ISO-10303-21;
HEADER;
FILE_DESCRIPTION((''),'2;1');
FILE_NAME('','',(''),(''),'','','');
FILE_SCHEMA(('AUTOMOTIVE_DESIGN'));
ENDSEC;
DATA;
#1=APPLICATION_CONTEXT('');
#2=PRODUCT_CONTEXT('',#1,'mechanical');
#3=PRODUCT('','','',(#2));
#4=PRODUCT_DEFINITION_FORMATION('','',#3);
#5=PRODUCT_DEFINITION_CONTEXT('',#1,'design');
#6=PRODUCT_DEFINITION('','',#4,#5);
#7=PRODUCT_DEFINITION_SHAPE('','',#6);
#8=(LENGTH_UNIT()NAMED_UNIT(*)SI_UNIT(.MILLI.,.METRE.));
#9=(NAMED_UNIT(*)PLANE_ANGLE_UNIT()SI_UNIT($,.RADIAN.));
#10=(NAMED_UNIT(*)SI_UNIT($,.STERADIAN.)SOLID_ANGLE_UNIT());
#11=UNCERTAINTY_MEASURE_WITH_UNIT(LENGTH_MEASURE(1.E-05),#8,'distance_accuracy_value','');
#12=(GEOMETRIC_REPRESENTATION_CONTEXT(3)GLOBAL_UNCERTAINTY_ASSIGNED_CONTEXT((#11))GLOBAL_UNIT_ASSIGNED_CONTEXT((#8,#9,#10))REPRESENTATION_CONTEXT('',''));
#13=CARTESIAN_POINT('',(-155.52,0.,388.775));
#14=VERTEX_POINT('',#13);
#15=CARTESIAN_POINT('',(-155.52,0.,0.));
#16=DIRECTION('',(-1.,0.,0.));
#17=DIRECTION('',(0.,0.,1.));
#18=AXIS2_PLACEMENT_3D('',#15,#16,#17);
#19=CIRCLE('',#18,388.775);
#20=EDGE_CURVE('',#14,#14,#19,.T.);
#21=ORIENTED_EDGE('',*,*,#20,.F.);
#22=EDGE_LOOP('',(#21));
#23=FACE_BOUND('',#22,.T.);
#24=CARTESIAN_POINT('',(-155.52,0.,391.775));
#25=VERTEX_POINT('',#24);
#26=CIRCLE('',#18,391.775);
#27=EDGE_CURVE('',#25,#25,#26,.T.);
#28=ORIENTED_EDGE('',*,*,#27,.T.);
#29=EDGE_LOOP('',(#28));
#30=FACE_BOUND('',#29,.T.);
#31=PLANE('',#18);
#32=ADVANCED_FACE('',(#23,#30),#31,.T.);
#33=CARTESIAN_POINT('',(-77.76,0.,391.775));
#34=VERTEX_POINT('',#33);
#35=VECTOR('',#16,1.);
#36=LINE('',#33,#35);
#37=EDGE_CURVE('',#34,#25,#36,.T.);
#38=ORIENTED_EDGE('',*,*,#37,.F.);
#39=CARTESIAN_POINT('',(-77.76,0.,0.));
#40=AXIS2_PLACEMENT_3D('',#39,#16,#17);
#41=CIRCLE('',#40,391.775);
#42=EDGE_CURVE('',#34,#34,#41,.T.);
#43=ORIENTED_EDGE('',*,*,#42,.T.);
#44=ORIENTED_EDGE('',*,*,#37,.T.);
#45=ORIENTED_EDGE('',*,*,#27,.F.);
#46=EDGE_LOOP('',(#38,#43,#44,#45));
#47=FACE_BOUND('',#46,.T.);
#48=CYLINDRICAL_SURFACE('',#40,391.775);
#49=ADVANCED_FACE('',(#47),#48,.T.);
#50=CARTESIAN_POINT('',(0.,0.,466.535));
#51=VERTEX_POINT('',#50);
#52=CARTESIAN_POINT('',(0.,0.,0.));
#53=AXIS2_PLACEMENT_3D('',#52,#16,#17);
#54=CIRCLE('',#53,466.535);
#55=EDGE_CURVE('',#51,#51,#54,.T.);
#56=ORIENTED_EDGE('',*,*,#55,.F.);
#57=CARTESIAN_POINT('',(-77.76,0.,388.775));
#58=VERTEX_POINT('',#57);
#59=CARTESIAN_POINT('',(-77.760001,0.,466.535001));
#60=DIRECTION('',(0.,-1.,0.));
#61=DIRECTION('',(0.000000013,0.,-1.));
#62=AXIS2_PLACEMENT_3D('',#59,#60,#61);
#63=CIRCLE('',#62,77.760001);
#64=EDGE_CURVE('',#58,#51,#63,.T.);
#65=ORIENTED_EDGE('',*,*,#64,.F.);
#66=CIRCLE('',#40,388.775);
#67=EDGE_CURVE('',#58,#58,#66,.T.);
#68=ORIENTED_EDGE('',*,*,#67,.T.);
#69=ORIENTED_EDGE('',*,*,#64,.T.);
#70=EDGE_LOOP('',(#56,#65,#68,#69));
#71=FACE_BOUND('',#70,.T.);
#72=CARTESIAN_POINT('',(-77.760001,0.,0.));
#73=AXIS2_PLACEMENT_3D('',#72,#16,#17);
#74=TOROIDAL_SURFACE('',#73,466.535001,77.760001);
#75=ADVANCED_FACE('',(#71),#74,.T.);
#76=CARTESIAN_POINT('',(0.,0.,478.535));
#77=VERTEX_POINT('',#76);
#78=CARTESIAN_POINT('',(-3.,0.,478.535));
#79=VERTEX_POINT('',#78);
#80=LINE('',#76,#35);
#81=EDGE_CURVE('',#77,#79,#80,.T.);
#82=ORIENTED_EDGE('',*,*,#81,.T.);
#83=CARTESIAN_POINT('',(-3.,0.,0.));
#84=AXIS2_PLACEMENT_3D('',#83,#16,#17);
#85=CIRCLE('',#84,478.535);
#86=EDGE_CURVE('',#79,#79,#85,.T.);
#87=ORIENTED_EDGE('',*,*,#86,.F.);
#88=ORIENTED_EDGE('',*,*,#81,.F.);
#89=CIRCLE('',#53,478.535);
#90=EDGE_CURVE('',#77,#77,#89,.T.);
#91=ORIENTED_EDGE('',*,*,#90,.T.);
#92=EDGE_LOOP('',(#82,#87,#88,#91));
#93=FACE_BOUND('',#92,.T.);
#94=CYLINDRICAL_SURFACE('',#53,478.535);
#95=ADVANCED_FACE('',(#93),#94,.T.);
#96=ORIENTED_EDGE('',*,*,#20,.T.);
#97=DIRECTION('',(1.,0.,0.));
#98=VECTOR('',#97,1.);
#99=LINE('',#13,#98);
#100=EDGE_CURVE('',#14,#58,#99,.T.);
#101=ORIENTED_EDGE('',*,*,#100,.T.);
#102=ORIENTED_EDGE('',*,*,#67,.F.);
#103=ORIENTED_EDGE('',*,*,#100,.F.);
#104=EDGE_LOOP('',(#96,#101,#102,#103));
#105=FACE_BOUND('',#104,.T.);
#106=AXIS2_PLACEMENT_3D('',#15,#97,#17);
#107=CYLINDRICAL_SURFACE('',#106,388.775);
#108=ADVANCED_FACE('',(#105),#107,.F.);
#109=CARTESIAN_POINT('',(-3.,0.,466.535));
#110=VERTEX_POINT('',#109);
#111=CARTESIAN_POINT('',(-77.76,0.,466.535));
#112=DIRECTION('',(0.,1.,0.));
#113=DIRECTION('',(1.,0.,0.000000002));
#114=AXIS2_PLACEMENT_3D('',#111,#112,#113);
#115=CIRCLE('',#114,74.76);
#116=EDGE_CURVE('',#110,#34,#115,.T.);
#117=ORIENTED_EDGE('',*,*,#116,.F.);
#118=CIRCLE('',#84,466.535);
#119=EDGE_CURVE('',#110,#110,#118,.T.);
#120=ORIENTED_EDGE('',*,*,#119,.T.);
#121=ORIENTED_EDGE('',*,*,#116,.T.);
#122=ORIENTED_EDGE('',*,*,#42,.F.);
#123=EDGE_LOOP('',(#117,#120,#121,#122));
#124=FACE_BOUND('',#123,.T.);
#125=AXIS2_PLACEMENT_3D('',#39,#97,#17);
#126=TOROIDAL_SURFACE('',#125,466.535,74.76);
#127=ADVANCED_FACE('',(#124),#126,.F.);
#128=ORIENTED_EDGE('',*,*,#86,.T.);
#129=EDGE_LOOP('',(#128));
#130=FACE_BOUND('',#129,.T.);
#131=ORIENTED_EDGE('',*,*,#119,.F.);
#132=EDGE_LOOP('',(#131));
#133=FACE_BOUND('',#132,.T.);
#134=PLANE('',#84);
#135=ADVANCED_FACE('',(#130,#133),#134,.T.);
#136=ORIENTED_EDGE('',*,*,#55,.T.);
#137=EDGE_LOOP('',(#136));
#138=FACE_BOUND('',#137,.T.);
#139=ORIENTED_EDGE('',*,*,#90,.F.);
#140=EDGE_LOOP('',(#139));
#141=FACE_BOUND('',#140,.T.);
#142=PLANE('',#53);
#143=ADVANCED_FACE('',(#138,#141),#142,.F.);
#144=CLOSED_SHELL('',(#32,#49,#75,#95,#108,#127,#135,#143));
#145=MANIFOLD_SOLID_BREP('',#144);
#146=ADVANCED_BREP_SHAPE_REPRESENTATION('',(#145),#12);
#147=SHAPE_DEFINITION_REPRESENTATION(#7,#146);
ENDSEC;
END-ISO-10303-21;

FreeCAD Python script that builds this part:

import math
import FreeCAD as App
import Part
import Sketcher

doc = App.newDocument("Part")
params = doc.addObject("Spreadsheet::Sheet", "Params")
for row, (alias, value) in enumerate([
    ("sketch1_width", "3 mm"),
    ("sketch1_height", "12 mm"),
    ("sketch1_radius", "74.76 mm"),
    ("sketch1_width2", "77.76 mm"),
    ("revolution_angle", "360 deg"),
], start=1):
    params.set(f"A{row}", alias)
    params.set(f"B{row}", "=" + value)
    params.setAlias(f"B{row}", alias)

body = doc.addObject("PartDesign::Body", "Body")

# Sketch on XZ plane
sketch1 = body.newObject("Sketcher::SketchObject", "Sketch")
sketch1.AttachmentSupport = (doc.getObject("XZ_Plane"), [""])
sketch1.MapMode = "FlatFace"
sketch1.addGeometry(Part.LineSegment(App.Vector(0, 466.5, 0), App.Vector(0, 478.5, 0)), False)
sketch1.addGeometry(Part.LineSegment(App.Vector(0, 478.5, 0), App.Vector(-3, 478.5, 0)), False)
sketch1.addGeometry(Part.LineSegment(App.Vector(-3, 478.5, 0), App.Vector(-3, 466.5, 0)), False)
sketch1.addGeometry(Part.ArcOfCircle(Part.Circle(App.Vector(-77.8, 466.5, 0), App.Vector(0, 0, 1), 74.8), math.radians(-90), math.radians(0)), False)
sketch1.addGeometry(Part.LineSegment(App.Vector(-77.8, 391.8, 0), App.Vector(-155.5, 391.8, 0)), False)
sketch1.addGeometry(Part.LineSegment(App.Vector(-155.5, 391.8, 0), App.Vector(-155.5, 388.8, 0)), False)
sketch1.addGeometry(Part.LineSegment(App.Vector(-155.5, 388.8, 0), App.Vector(-77.8, 388.8, 0)), False)
sketch1.addGeometry(Part.ArcOfCircle(Part.Circle(App.Vector(-77.8, 466.5, 0), App.Vector(0, 0, 1), 77.8), math.radians(-90), math.radians(0)), False)
sketch1.addConstraint(Sketcher.Constraint("Coincident", 0, 2, 1, 1))
sketch1.addConstraint(Sketcher.Constraint("Coincident", 1, 2, 2, 1))
sketch1.addConstraint(Sketcher.Constraint("Tangent", 2, 2, 3, 2))
sketch1.addConstraint(Sketcher.Constraint("Tangent", 3, 1, 4, 1))
sketch1.addConstraint(Sketcher.Constraint("Coincident", 4, 2, 5, 1))
sketch1.addConstraint(Sketcher.Constraint("Coincident", 5, 2, 6, 1))
sketch1.addConstraint(Sketcher.Constraint("Tangent", 6, 2, 7, 1))
sketch1.addConstraint(Sketcher.Constraint("Tangent", 7, 2, 0, 1))
sketch1.addConstraint(Sketcher.Constraint("Vertical", 0))
sketch1.addConstraint(Sketcher.Constraint("Horizontal", 1))
sketch1.addConstraint(Sketcher.Constraint("Vertical", 2))
sketch1.addConstraint(Sketcher.Constraint("Horizontal", 4))
sketch1.addConstraint(Sketcher.Constraint("Vertical", 5))
sketch1.addConstraint(Sketcher.Constraint("Horizontal", 6))
sketch1.addConstraint(Sketcher.Constraint("Coincident", 7, 3, 3, 3))
sketch1.addConstraint(Sketcher.Constraint("PointOnObject", 0, 2, -2))
sketch1.addConstraint(Sketcher.Constraint("DistanceX", 1, 2, 1, 1, 3.0))
sketch1.addConstraint(Sketcher.Constraint("DistanceY", 0, 1, 0, 2, 12.0))
sketch1.addConstraint(Sketcher.Constraint("Radius", 3, 74.76))
sketch1.addConstraint(Sketcher.Constraint("DistanceX", 4, 2, 4, 1, 77.76))
sketch1.addConstraint(Sketcher.Constraint("DistanceY", -1, 1, 3, 3, 466.535))
sketch1.setExpression("Constraints[16]", "Params.sketch1_width")
sketch1.setExpression("Constraints[17]", "Params.sketch1_height")
sketch1.setExpression("Constraints[18]", "Params.sketch1_radius")
sketch1.setExpression("Constraints[19]", "Params.sketch1_width2")
revolution = body.newObject("PartDesign::Revolution", "Revolution")
revolution.Profile = sketch1
revolution.ReferenceAxis = (sketch1, ["H_Axis"])
revolution.setExpression("Angle", "Params.revolution_angle")

doc.recompute()
